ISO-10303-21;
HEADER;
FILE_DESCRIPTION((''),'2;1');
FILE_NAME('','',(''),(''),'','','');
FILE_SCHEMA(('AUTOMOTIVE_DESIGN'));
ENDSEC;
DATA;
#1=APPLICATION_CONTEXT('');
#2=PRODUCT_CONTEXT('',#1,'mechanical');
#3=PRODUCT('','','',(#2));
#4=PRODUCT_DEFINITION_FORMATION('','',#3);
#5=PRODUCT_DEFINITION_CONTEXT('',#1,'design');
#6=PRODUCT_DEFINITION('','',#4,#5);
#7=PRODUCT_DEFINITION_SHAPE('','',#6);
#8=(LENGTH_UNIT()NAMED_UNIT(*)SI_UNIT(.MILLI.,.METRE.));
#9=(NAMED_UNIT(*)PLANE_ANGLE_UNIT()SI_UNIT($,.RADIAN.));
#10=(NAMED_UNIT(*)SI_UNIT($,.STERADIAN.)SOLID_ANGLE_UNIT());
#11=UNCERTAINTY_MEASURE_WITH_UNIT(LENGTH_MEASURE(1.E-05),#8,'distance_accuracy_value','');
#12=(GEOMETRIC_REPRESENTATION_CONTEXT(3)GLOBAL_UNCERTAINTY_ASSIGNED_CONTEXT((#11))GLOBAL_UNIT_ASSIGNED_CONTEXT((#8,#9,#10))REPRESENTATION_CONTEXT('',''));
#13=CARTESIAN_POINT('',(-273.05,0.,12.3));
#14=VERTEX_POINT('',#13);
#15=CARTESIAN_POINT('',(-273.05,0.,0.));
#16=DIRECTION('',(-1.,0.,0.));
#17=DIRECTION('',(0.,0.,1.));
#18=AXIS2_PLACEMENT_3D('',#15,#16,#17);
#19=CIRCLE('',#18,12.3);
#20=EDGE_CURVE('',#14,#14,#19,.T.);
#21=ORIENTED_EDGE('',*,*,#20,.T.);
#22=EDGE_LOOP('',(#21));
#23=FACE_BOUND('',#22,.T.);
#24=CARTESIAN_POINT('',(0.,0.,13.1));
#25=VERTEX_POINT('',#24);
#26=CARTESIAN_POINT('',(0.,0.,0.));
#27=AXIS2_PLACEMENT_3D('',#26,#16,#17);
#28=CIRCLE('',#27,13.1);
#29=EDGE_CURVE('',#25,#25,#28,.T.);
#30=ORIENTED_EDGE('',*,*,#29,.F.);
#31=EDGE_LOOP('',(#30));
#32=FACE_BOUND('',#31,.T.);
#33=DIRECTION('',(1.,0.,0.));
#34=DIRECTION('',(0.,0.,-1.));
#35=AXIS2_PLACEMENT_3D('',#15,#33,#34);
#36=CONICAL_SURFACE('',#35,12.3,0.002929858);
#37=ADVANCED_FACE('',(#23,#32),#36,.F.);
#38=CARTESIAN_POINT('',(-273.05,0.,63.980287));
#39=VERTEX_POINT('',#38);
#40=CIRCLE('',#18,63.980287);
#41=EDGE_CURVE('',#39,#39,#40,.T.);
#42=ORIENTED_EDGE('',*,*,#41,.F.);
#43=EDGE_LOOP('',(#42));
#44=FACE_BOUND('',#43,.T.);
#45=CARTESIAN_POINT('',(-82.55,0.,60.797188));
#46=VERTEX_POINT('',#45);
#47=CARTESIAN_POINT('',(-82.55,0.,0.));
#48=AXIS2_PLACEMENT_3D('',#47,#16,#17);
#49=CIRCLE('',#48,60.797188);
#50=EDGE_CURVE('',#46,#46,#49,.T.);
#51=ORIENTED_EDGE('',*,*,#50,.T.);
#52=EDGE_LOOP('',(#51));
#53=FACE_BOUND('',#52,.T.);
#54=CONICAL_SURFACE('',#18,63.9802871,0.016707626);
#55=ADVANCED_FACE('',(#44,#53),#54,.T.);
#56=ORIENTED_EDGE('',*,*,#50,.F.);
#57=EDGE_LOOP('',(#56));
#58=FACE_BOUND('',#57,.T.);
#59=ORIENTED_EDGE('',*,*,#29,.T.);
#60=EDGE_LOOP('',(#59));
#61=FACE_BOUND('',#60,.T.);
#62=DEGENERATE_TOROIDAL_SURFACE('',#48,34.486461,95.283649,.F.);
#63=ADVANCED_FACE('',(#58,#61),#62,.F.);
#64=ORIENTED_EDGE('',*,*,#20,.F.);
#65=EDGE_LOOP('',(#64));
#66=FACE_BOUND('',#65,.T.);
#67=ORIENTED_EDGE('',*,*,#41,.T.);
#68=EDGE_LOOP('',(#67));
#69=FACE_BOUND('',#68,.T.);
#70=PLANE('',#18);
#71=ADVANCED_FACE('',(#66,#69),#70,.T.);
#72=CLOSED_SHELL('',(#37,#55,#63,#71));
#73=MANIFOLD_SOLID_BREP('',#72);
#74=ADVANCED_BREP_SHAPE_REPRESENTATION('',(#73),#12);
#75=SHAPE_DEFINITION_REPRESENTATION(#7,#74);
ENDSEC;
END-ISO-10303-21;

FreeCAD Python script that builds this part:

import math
import FreeCAD as App
import Part
import Sketcher

V = App.Vector

doc = App.newDocument("Part")
body = doc.addObject("PartDesign::Body", "Body")

sketch1 = body.newObject("Sketcher::SketchObject", "Sketch")
sketch1.AttachmentSupport = (doc.getObject("XZ_Plane"), [""])
sketch1.MapMode = "FlatFace"
sketch1.addGeometry([
    Part.LineSegment(V(-273.05, -63.980287, 0), V(-273.05, -12.3, 0)),
    Part.LineSegment(V(-273.05, -12.3, 0), V(-82.55, -12.85814, 0)),
    Part.LineSegment(V(-82.55, -12.85814, 0), V(0, -13.1, 0)),
    Part.ArcOfCircle(Part.Circle(V(-82.55, 34.486461, 0), V(0, 0, 1), 95.283649), math.radians(-90), math.radians(-29.961566)),
    Part.LineSegment(V(-82.55, -60.797188, 0), V(-273.05, -63.980287, 0)),
], False)
sketch1.addConstraint([
    Sketcher.Constraint("Coincident", 0, 2, 1, 1),
    Sketcher.Constraint("Coincident", 1, 2, 2, 1),
    Sketcher.Constraint("Coincident", 2, 2, 3, 2),
    Sketcher.Constraint("Coincident", 3, 1, 4, 1),
    Sketcher.Constraint("Coincident", 4, 2, 0, 1),
    Sketcher.Constraint("Vertical", 0),
    Sketcher.Constraint("PointOnObject", 2, 2, -2),
    Sketcher.Constraint("Parallel", 1, 2),
    Sketcher.Constraint("Vertical", 3, 3, 1, 2),
    Sketcher.Constraint("Vertical", 1, 2, 3, 1),
    Sketcher.Constraint("DistanceY", 0, 2, -1, 1, 12.3),
    Sketcher.Constraint("DistanceY", 2, 2, -1, 1, 13.1),
    Sketcher.Constraint("DistanceX", 0, 2, 3, 3, 190.5),
    Sketcher.Constraint("DistanceX", 3, 3, -1, 1, 82.55),
    Sketcher.Constraint("Radius", 3, 95.283649),
    Sketcher.Constraint("DistanceY", 4, 2, 3, 1, 3.183099),
])
revolution = body.newObject("PartDesign::Revolution", "Revolution")
revolution.Profile = sketch1
revolution.ReferenceAxis = (sketch1, ["H_Axis"])
revolution.Angle = 360

doc.recompute()
